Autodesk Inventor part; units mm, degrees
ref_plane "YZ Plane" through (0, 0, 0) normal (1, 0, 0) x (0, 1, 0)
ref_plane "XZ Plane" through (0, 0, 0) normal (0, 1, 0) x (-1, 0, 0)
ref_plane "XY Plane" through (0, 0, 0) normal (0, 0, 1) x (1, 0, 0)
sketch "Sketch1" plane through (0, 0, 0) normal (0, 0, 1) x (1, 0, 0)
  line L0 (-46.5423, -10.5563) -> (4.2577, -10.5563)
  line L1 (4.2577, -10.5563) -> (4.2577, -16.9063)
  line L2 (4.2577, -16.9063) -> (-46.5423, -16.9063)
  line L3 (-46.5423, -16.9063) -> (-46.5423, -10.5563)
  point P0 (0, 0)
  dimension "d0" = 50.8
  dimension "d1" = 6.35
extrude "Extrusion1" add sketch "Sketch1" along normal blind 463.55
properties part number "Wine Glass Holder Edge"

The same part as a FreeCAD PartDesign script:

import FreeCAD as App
import Part
import Sketcher

V = App.Vector
Q = App.Units.Quantity


def add_polygon(sketch, points):
    """Adds a closed chain of lines whose ends are joined by coincident constraints."""
    first, n = sketch.GeometryCount, len(points)
    for a, b in zip(points, points[1:] + points[:1]):
        sketch.addGeometry(Part.LineSegment(App.Vector(*a, 0), App.Vector(*b, 0)), False)
    for i in range(n):
        sketch.addConstraint(Sketcher.Constraint("Coincident", first + i, 2, first + (i + 1) % n, 1))

doc = App.newDocument("Part")
body = doc.addObject("PartDesign::Body", "Body")

sketch1 = body.newObject("Sketcher::SketchObject", "Sketch")
sketch1.AttachmentSupport = (doc.getObject("XY_Plane"), [""])
sketch1.MapMode = "FlatFace"
add_polygon(sketch1, [(4.2577, -10.5563), (-46.5423, -10.5563), (-46.5423, -16.9063), (4.2577, -16.9063)])
sketch1.addConstraint(Sketcher.Constraint("Horizontal", 0))
sketch1.addConstraint(Sketcher.Constraint("Vertical", 1))
sketch1.addConstraint(Sketcher.Constraint("Horizontal", 2))
sketch1.addConstraint(Sketcher.Constraint("Vertical", 3))
sketch1.addConstraint(Sketcher.Constraint("DistanceX", 0, 2, 0, 1, Q("2 in")))
sketch1.addConstraint(Sketcher.Constraint("DistanceY", 1, 2, 1, 1, Q("0.25 in")))
sketch1.addConstraint(Sketcher.Constraint("DistanceY", 0, 2, -1, 1, Q("0.4156 in")))
sketch1.addConstraint(Sketcher.Constraint("DistanceX", 0, 2, -1, 1, Q("46.5423 mm")))
pad1 = body.newObject("PartDesign::Pad", "Pad")
pad1.Profile = sketch1
pad1.Length = Q("18.25 in")

doc.recompute()
